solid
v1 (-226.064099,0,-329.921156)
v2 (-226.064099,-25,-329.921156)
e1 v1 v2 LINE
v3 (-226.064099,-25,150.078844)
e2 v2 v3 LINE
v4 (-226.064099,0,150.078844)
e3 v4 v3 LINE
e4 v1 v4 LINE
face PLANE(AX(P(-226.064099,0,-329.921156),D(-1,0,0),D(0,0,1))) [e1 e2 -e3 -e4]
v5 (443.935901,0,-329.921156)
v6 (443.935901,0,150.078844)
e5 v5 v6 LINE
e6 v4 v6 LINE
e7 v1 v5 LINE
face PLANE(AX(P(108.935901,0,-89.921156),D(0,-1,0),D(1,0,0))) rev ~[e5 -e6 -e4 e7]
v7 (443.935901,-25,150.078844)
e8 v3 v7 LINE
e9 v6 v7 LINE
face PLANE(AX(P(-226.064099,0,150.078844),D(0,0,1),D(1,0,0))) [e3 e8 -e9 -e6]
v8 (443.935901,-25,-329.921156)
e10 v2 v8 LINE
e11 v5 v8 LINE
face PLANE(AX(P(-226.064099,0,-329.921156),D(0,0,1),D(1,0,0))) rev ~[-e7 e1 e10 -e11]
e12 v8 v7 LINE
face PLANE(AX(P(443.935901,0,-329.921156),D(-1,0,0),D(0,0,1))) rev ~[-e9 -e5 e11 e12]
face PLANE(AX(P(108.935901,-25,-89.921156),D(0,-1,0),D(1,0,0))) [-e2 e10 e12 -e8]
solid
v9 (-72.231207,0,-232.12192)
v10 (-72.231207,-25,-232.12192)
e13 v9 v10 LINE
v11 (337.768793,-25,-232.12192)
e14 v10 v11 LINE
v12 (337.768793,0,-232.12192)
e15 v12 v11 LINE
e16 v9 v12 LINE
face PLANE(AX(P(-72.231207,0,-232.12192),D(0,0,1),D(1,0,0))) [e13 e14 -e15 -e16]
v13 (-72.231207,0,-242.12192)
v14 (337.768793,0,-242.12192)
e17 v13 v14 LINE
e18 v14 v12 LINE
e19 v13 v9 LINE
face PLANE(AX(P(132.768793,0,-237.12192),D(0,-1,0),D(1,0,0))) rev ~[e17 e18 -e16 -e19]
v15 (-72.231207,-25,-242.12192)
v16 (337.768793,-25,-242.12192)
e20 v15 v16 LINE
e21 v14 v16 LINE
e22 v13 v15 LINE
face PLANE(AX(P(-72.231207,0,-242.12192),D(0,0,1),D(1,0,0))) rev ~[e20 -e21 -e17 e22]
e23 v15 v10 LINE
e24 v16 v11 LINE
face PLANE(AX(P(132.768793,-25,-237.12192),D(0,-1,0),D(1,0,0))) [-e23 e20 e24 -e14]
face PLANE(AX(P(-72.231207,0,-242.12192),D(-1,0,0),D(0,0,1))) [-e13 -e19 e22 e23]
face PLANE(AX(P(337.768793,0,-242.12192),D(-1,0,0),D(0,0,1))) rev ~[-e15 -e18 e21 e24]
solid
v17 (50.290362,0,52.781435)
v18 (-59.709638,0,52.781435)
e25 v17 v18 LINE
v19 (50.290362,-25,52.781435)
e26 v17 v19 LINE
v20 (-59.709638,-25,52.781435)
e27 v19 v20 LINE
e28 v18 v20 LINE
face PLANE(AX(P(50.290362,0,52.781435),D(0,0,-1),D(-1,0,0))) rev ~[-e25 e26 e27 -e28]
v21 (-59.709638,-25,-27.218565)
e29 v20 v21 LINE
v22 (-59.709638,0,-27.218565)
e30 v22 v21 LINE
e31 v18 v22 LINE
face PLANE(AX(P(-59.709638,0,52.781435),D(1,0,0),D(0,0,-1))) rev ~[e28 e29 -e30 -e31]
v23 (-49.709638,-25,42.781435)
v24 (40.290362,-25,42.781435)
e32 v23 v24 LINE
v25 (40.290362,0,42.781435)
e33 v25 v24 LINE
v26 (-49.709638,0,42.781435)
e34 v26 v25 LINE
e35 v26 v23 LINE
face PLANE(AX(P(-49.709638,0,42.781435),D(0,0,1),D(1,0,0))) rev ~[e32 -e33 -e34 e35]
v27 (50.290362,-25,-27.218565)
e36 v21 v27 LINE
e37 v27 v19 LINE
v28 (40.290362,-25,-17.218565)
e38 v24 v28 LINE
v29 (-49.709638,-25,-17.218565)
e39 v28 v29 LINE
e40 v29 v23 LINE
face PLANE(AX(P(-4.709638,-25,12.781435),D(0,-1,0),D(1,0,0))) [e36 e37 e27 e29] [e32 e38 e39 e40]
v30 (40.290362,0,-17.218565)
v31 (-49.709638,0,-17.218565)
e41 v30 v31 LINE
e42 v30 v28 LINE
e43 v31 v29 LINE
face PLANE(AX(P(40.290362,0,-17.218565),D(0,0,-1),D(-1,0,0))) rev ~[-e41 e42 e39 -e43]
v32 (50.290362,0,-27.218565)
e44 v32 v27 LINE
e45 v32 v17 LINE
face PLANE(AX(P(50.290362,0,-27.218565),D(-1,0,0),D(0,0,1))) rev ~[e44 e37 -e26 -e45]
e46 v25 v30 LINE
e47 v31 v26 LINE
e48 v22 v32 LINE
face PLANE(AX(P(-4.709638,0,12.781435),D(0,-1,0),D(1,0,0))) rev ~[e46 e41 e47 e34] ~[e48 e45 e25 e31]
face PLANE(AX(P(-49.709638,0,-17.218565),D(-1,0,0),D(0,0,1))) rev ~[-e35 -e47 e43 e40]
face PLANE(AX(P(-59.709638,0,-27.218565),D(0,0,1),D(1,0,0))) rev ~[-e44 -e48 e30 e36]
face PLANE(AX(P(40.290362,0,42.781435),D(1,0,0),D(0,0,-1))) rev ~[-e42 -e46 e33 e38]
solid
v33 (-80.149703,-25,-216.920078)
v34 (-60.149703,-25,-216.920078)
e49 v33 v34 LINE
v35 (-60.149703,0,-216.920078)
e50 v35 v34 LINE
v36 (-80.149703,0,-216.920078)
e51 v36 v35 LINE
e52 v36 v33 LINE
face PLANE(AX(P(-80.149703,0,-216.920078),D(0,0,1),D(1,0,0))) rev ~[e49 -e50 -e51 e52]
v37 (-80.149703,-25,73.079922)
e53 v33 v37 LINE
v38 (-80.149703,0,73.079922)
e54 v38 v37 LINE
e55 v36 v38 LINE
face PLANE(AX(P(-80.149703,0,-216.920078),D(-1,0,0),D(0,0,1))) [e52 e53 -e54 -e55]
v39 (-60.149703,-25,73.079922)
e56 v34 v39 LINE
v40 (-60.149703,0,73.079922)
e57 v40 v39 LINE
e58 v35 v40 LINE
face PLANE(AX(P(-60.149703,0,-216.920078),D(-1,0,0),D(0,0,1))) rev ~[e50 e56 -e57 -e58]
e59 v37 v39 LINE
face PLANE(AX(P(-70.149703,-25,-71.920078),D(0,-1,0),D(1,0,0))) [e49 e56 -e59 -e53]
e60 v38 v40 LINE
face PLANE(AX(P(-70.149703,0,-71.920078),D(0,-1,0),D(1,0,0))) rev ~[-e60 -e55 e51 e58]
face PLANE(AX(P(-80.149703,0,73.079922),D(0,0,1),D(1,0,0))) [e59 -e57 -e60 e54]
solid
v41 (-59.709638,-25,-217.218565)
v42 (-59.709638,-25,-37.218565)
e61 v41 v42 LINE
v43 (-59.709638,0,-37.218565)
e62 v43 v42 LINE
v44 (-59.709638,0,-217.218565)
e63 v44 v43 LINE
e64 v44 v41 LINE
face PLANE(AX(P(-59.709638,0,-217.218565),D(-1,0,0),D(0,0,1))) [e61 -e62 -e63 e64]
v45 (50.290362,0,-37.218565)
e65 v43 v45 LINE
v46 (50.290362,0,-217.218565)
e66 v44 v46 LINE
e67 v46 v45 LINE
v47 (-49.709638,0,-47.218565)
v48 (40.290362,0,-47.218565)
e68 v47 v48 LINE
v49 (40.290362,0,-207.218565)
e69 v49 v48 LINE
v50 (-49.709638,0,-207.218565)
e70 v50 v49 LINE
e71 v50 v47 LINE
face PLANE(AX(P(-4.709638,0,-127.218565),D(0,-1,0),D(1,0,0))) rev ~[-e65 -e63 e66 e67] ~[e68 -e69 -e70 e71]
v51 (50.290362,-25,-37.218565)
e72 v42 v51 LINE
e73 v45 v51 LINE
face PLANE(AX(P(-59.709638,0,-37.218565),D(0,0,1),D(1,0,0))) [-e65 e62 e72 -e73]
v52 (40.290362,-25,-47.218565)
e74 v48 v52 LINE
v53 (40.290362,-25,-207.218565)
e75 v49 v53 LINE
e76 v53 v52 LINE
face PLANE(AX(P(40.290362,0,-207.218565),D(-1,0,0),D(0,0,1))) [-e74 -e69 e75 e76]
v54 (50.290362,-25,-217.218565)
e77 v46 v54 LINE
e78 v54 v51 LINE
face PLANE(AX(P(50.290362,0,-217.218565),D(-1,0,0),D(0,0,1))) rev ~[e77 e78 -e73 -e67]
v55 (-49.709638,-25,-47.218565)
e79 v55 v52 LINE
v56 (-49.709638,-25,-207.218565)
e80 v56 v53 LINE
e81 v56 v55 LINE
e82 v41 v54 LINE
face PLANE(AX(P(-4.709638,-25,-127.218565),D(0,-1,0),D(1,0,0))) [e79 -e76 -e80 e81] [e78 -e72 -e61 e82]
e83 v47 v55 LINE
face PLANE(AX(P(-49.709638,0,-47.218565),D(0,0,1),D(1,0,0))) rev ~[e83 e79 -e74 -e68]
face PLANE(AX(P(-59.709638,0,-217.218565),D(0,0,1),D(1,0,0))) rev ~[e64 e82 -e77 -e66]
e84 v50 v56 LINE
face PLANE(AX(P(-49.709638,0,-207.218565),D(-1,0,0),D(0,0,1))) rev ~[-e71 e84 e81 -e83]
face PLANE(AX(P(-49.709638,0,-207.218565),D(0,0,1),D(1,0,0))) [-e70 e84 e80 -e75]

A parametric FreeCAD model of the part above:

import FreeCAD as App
import Part
import Sketcher
Q = App.Units.Quantity

doc = App.newDocument("Part")
body = doc.addObject("PartDesign::Body", "Body")
body.AllowCompound = True

sketch1 = body.newObject("Sketcher::SketchObject", "Sketch")
sketch1.AttachmentSupport = (doc.getObject("XZ_Plane"), [""])
sketch1.MapMode = "FlatFace"
sketch1.addGeometry(Part.LineSegment(App.Vector(50, -27, 0), App.Vector(50, 53, 0)), False)
sketch1.addGeometry(Part.LineSegment(App.Vector(50, 53, 0), App.Vector(-60, 53, 0)), False)
sketch1.addGeometry(Part.LineSegment(App.Vector(-60, 53, 0), App.Vector(-60, -27, 0)), False)
sketch1.addGeometry(Part.LineSegment(App.Vector(-60, -27, 0), App.Vector(50, -27, 0)), False)
sketch1.addGeometry(Part.LineSegment(App.Vector(-50, -17, 0), App.Vector(-50, 43, 0)), False)
sketch1.addGeometry(Part.LineSegment(App.Vector(-50, 43, 0), App.Vector(40, 43, 0)), False)
sketch1.addGeometry(Part.LineSegment(App.Vector(40, 43, 0), App.Vector(40, -17, 0)), False)
sketch1.addGeometry(Part.LineSegment(App.Vector(40, -17, 0), App.Vector(-50, -17, 0)), False)
sketch1.addGeometry(Part.LineSegment(App.Vector(-60, -37, 0), App.Vector(-60, -217, 0)), False)
sketch1.addGeometry(Part.LineSegment(App.Vector(-60, -217, 0), App.Vector(50, -217, 0)), False)
sketch1.addGeometry(Part.LineSegment(App.Vector(50, -217, 0), App.Vector(50, -37, 0)), False)
sketch1.addGeometry(Part.LineSegment(App.Vector(50, -37, 0), App.Vector(-60, -37, 0)), False)
sketch1.addGeometry(Part.LineSegment(App.Vector(40, -207, 0), App.Vector(-50, -207, 0)), False)
sketch1.addGeometry(Part.LineSegment(App.Vector(-50, -207, 0), App.Vector(-50, -47, 0)), False)
sketch1.addGeometry(Part.LineSegment(App.Vector(-50, -47, 0), App.Vector(40, -47, 0)), False)
sketch1.addGeometry(Part.LineSegment(App.Vector(40, -47, 0), App.Vector(40, -207, 0)), False)
sketch1.addConstraint(Sketcher.Constraint("Coincident", 0, 2, 1, 1))
sketch1.addConstraint(Sketcher.Constraint("Coincident", 1, 2, 2, 1))
sketch1.addConstraint(Sketcher.Constraint("Coincident", 2, 2, 3, 1))
sketch1.addConstraint(Sketcher.Constraint("Coincident", 3, 2, 0, 1))
sketch1.addConstraint(Sketcher.Constraint("Coincident", 4, 2, 5, 1))
sketch1.addConstraint(Sketcher.Constraint("Coincident", 5, 2, 6, 1))
sketch1.addConstraint(Sketcher.Constraint("Coincident", 6, 2, 7, 1))
sketch1.addConstraint(Sketcher.Constraint("Coincident", 7, 2, 4, 1))
sketch1.addConstraint(Sketcher.Constraint("Coincident", 8, 2, 9, 1))
sketch1.addConstraint(Sketcher.Constraint("Coincident", 9, 2, 10, 1))
sketch1.addConstraint(Sketcher.Constraint("Coincident", 10, 2, 11, 1))
sketch1.addConstraint(Sketcher.Constraint("Coincident", 11, 2, 8, 1))
sketch1.addConstraint(Sketcher.Constraint("Coincident", 12, 2, 13, 1))
sketch1.addConstraint(Sketcher.Constraint("Coincident", 13, 2, 14, 1))
sketch1.addConstraint(Sketcher.Constraint("Coincident", 14, 2, 15, 1))
sketch1.addConstraint(Sketcher.Constraint("Coincident", 15, 2, 12, 1))
sketch1.addConstraint(Sketcher.Constraint("Vertical", 0))
sketch1.addConstraint(Sketcher.Constraint("Horizontal", 1))
sketch1.addConstraint(Sketcher.Constraint("Vertical", 2))
sketch1.addConstraint(Sketcher.Constraint("Horizontal", 3))
sketch1.addConstraint(Sketcher.Constraint("Vertical", 4))
sketch1.addConstraint(Sketcher.Constraint("Horizontal", 5))
sketch1.addConstraint(Sketcher.Constraint("Vertical", 6))
sketch1.addConstraint(Sketcher.Constraint("Horizontal", 7))
sketch1.addConstraint(Sketcher.Constraint("Vertical", 8))
sketch1.addConstraint(Sketcher.Constraint("Horizontal", 9))
sketch1.addConstraint(Sketcher.Constraint("Vertical", 10))
sketch1.addConstraint(Sketcher.Constraint("Horizontal", 11))
sketch1.addConstraint(Sketcher.Constraint("Horizontal", 12))
sketch1.addConstraint(Sketcher.Constraint("Vertical", 13))
sketch1.addConstraint(Sketcher.Constraint("Horizontal", 14))
sketch1.addConstraint(Sketcher.Constraint("Vertical", 15))
sketch1.addConstraint(Sketcher.Constraint("Vertical", 2, 2, 8, 2))
sketch1.addConstraint(Sketcher.Constraint("Vertical", 3, 2, 9, 2))
sketch1.addConstraint(Sketcher.Constraint("Vertical", 7, 2, 12, 2))
sketch1.addConstraint(Sketcher.Constraint("Vertical", 6, 2, 14, 2))
sketch1.addConstraint(Sketcher.Constraint("DistanceX", 1, 2, 1, 1, Q("110 mm")))
sketch1.addConstraint(Sketcher.Constraint("DistanceX", 5, 1, 5, 2, Q("90 mm")))
sketch1.addConstraint(Sketcher.Constraint("DistanceY", 0, 1, 0, 2, Q("80 mm")))
sketch1.addConstraint(Sketcher.Constraint("DistanceY", 4, 1, 4, 2, Q("60 mm")))
sketch1.addConstraint(Sketcher.Constraint("DistanceY", 8, 2, 8, 1, Q("180 mm")))
sketch1.addConstraint(Sketcher.Constraint("DistanceY", 13, 1, 13, 2, Q("160 mm")))
sketch1.addConstraint(Sketcher.Constraint("DistanceX", 1, 2, 4, 2, Q("10 mm")))
sketch1.addConstraint(Sketcher.Constraint("DistanceY", 4, 2, 1, 2, Q("10 mm")))
sketch1.addConstraint(Sketcher.Constraint("DistanceY", 8, 2, 2, 2, Q("190 mm")))
sketch1.addConstraint(Sketcher.Constraint("DistanceY", 8, 2, 12, 2, Q("10 mm")))
sketch1.addConstraint(Sketcher.Constraint("DistanceX", -1, 1, 0, 2, Q("50.290362 mm")))
sketch1.addConstraint(Sketcher.Constraint("DistanceY", -1, 1, 0, 2, Q("52.781435 mm")))
pad1 = body.newObject("PartDesign::Pad", "Pad")
pad1.Profile = sketch1
pad1.Length = 25
body2 = doc.addObject("PartDesign::Body", "Body001")

sketch2 = body2.newObject("Sketcher::SketchObject", "Sketch001")
sketch2.AttachmentSupport = (doc.getObject("XZ_Plane001"), [""])
sketch2.MapMode = "FlatFace"
sketch2.addGeometry(Part.LineSegment(App.Vector(-80, 73, 0), App.Vector(-80, -217, 0)), False)
sketch2.addGeometry(Part.LineSegment(App.Vector(-80, -217, 0), App.Vector(-60, -217, 0)), False)
sketch2.addGeometry(Part.LineSegment(App.Vector(-60, -217, 0), App.Vector(-60, 73, 0)), False)
sketch2.addGeometry(Part.LineSegment(App.Vector(-60, 73, 0), App.Vector(-80, 73, 0)), False)
sketch2.addConstraint(Sketcher.Constraint("Coincident", 0, 2, 1, 1))
sketch2.addConstraint(Sketcher.Constraint("Coincident", 1, 2, 2, 1))
sketch2.addConstraint(Sketcher.Constraint("Coincident", 2, 2, 3, 1))
sketch2.addConstraint(Sketcher.Constraint("Coincident", 3, 2, 0, 1))
sketch2.addConstraint(Sketcher.Constraint("Vertical", 0))
sketch2.addConstraint(Sketcher.Constraint("Horizontal", 1))
sketch2.addConstraint(Sketcher.Constraint("Vertical", 2))
sketch2.addConstraint(Sketcher.Constraint("Horizontal", 3))
sketch2.addConstraint(Sketcher.Constraint("DistanceX", 1, 1, 1, 2, Q("20 mm")))
sketch2.addConstraint(Sketcher.Constraint("DistanceY", 0, 2, 0, 1, Q("290 mm")))
sketch2.addConstraint(Sketcher.Constraint("DistanceY", -1, 1, 2, 2, Q("73.079922 mm")))
sketch2.addConstraint(Sketcher.Constraint("DistanceX", 0, 2, -1, 1, Q("80.149703 mm")))
pad2 = body2.newObject("PartDesign::Pad", "Pad001")
pad2.Profile = sketch2
pad2.Length = 25
body3 = doc.addObject("PartDesign::Body", "Body002")

sketch3 = body3.newObject("Sketcher::SketchObject", "Sketch002")
sketch3.AttachmentSupport = (doc.getObject("XZ_Plane002"), [""])
sketch3.MapMode = "FlatFace"
sketch3.addGeometry(Part.LineSegment(App.Vector(-72, -232, 0), App.Vector(-72, -242, 0)), False)
sketch3.addGeometry(Part.LineSegment(App.Vector(-72, -242, 0), App.Vector(338, -242, 0)), False)
sketch3.addGeometry(Part.LineSegment(App.Vector(338, -242, 0), App.Vector(338, -232, 0)), False)
sketch3.addGeometry(Part.LineSegment(App.Vector(338, -232, 0), App.Vector(-72, -232, 0)), False)
sketch3.addConstraint(Sketcher.Constraint("Coincident", 0, 2, 1, 1))
sketch3.addConstraint(Sketcher.Constraint("Coincident", 1, 2, 2, 1))
sketch3.addConstraint(Sketcher.Constraint("Coincident", 2, 2, 3, 1))
sketch3.addConstraint(Sketcher.Constraint("Coincident", 3, 2, 0, 1))
sketch3.addConstraint(Sketcher.Constraint("Vertical", 0))
sketch3.addConstraint(Sketcher.Constraint("Horizontal", 1))
sketch3.addConstraint(Sketcher.Constraint("Vertical", 2))
sketch3.addConstraint(Sketcher.Constraint("Horizontal", 3))
sketch3.addConstraint(Sketcher.Constraint("DistanceX", 1, 1, 1, 2, Q("410 mm")))
sketch3.addConstraint(Sketcher.Constraint("DistanceY", 0, 2, 0, 1, Q("10 mm")))
sketch3.addConstraint(Sketcher.Constraint("DistanceY", 0, 2, -1, 1, Q("242.12192 mm")))
sketch3.addConstraint(Sketcher.Constraint("DistanceX", 0, 2, -1, 1, Q("72.231207 mm")))
pad3 = body3.newObject("PartDesign::Pad", "Pad002")
pad3.Profile = sketch3
pad3.Length = 25
body4 = doc.addObject("PartDesign::Body", "Body003")

sketch4 = body4.newObject("Sketcher::SketchObject", "Sketch003")
sketch4.AttachmentSupport = (doc.getObject("XZ_Plane003"), [""])
sketch4.MapMode = "FlatFace"
sketch4.addGeometry(Part.LineSegment(App.Vector(-226, 150, 0), App.Vector(-226, -330, 0)), False)
sketch4.addGeometry(Part.LineSegment(App.Vector(-226, -330, 0), App.Vector(444, -330, 0)), False)
sketch4.addGeometry(Part.LineSegment(App.Vector(444, -330, 0), App.Vector(444, 150, 0)), False)
sketch4.addGeometry(Part.LineSegment(App.Vector(444, 150, 0), App.Vector(-226, 150, 0)), False)
sketch4.addConstraint(Sketcher.Constraint("Coincident", 0, 2, 1, 1))
sketch4.addConstraint(Sketcher.Constraint("Coincident", 1, 2, 2, 1))
sketch4.addConstraint(Sketcher.Constraint("Coincident", 2, 2, 3, 1))
sketch4.addConstraint(Sketcher.Constraint("Coincident", 3, 2, 0, 1))
sketch4.addConstraint(Sketcher.Constraint("Vertical", 0))
sketch4.addConstraint(Sketcher.Constraint("Horizontal", 1))
sketch4.addConstraint(Sketcher.Constraint("Vertical", 2))
sketch4.addConstraint(Sketcher.Constraint("Horizontal", 3))
sketch4.addConstraint(Sketcher.Constraint("DistanceX", 1, 1, 1, 2, Q("670 mm")))
sketch4.addConstraint(Sketcher.Constraint("DistanceY", 0, 2, 0, 1, Q("480 mm")))
sketch4.addConstraint(Sketcher.Constraint("DistanceX", 0, 2, -1, 1, Q("226.064099 mm")))
sketch4.addConstraint(Sketcher.Constraint("DistanceY", 0, 2, -1, 1, Q("329.921156 mm")))
pad4 = body4.newObject("PartDesign::Pad", "Pad003")
pad4.Profile = sketch4
pad4.Length = 25

doc.recompute()
